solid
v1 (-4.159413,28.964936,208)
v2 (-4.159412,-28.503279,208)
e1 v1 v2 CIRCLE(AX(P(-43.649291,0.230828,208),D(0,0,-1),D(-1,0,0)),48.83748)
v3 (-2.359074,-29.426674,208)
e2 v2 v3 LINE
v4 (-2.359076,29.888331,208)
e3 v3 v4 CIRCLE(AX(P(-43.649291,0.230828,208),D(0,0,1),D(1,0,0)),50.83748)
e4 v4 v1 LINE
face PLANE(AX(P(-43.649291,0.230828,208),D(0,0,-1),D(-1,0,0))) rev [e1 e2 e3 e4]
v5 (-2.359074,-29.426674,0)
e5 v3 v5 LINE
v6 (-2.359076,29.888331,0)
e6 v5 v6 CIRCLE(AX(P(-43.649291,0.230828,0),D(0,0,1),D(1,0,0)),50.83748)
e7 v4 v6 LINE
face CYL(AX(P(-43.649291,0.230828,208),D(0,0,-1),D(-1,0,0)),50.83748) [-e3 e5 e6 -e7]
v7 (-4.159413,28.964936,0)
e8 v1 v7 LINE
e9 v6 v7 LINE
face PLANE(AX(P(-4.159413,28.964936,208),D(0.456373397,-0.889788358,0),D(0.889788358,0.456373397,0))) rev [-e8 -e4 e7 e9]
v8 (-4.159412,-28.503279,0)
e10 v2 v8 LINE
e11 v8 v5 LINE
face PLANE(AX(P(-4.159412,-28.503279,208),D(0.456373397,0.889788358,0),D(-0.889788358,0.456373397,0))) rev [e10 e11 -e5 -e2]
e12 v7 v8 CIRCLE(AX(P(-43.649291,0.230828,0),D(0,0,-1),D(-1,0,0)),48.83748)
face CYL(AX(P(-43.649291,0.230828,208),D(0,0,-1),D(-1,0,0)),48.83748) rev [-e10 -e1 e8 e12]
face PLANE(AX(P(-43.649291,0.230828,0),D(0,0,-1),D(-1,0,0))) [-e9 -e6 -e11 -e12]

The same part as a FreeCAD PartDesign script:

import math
import FreeCAD as App
import Part
import Sketcher

V = App.Vector
Q = App.Units.Quantity

doc = App.newDocument("Part")
params = doc.addObject("Spreadsheet::Sheet", "Params")
for row, (alias, value) in enumerate([
    ("pad1_length", "208 mm"),
], start=1):
    params.set(f"A{row}", alias)
    params.set(f"B{row}", "=" + value)
    params.setAlias(f"B{row}", alias)

body = doc.addObject("PartDesign::Body", "Body")

sketch1 = doc.addObject("Sketcher::SketchObject", "Sketch")
body.addObject(sketch1)
sketch1.AttachmentSupport = (doc.XY_Plane, [""])
sketch1.MapMode = "FlatFace"
sketch1.addGeometry(Part.LineSegment(V(-2.4, 29.9, 0), V(-4.2, 29, 0)), False)
sketch1.addGeometry(Part.ArcOfCircle(Part.Circle(V(-43.6, 0.2, 0), V(0, 0, 1), 48.8), math.radians(-36), math.radians(36)), False)
sketch1.addGeometry(Part.LineSegment(V(-4.2, -28.5, 0), V(-2.4, -29.4, 0)), False)
sketch1.addGeometry(Part.ArcOfCircle(Part.Circle(V(-43.6, 0.2, 0), V(0, 0, 1), 50.8), math.radians(-36), math.radians(36)), False)
sketch1.addConstraint(Sketcher.Constraint("Coincident", 0, 2, 1, 2))
sketch1.addConstraint(Sketcher.Constraint("Coincident", 1, 1, 2, 1))
sketch1.addConstraint(Sketcher.Constraint("Coincident", 2, 2, 3, 1))
sketch1.addConstraint(Sketcher.Constraint("Coincident", 3, 2, 0, 1))
sketch1.addConstraint(Sketcher.Constraint("Coincident", 3, 3, 1, 3))
sketch1.addConstraint(Sketcher.Constraint("Vertical", 0, 2, 1, 1))
sketch1.addConstraint(Sketcher.Constraint("Vertical", 2, 2, 3, 2))
sketch1.addConstraint(Sketcher.Constraint("Radius", 1, Q("48.83748 mm")))
sketch1.addConstraint(Sketcher.Constraint("Radius", 3, Q("50.83748 mm")))
sketch1.addConstraint(Sketcher.Constraint("DistanceY", 2, 2, 3, 3, Q("29.657502 mm")))
sketch1.addConstraint(Sketcher.Constraint("Distance", 0, Q("2.023332 mm")))
sketch1.addConstraint(Sketcher.Constraint("DistanceX", 1, 3, -1, 1, Q("43.649291 mm")))
sketch1.addConstraint(Sketcher.Constraint("DistanceY", 1, 1, -1, 1, Q("28.503279 mm")))
pad1 = doc.addObject("PartDesign::Pad", "Pad")
body.addObject(pad1)
pad1.Profile = sketch1
pad1.setExpression("Length", "Params.pad1_length")

doc.recompute()
